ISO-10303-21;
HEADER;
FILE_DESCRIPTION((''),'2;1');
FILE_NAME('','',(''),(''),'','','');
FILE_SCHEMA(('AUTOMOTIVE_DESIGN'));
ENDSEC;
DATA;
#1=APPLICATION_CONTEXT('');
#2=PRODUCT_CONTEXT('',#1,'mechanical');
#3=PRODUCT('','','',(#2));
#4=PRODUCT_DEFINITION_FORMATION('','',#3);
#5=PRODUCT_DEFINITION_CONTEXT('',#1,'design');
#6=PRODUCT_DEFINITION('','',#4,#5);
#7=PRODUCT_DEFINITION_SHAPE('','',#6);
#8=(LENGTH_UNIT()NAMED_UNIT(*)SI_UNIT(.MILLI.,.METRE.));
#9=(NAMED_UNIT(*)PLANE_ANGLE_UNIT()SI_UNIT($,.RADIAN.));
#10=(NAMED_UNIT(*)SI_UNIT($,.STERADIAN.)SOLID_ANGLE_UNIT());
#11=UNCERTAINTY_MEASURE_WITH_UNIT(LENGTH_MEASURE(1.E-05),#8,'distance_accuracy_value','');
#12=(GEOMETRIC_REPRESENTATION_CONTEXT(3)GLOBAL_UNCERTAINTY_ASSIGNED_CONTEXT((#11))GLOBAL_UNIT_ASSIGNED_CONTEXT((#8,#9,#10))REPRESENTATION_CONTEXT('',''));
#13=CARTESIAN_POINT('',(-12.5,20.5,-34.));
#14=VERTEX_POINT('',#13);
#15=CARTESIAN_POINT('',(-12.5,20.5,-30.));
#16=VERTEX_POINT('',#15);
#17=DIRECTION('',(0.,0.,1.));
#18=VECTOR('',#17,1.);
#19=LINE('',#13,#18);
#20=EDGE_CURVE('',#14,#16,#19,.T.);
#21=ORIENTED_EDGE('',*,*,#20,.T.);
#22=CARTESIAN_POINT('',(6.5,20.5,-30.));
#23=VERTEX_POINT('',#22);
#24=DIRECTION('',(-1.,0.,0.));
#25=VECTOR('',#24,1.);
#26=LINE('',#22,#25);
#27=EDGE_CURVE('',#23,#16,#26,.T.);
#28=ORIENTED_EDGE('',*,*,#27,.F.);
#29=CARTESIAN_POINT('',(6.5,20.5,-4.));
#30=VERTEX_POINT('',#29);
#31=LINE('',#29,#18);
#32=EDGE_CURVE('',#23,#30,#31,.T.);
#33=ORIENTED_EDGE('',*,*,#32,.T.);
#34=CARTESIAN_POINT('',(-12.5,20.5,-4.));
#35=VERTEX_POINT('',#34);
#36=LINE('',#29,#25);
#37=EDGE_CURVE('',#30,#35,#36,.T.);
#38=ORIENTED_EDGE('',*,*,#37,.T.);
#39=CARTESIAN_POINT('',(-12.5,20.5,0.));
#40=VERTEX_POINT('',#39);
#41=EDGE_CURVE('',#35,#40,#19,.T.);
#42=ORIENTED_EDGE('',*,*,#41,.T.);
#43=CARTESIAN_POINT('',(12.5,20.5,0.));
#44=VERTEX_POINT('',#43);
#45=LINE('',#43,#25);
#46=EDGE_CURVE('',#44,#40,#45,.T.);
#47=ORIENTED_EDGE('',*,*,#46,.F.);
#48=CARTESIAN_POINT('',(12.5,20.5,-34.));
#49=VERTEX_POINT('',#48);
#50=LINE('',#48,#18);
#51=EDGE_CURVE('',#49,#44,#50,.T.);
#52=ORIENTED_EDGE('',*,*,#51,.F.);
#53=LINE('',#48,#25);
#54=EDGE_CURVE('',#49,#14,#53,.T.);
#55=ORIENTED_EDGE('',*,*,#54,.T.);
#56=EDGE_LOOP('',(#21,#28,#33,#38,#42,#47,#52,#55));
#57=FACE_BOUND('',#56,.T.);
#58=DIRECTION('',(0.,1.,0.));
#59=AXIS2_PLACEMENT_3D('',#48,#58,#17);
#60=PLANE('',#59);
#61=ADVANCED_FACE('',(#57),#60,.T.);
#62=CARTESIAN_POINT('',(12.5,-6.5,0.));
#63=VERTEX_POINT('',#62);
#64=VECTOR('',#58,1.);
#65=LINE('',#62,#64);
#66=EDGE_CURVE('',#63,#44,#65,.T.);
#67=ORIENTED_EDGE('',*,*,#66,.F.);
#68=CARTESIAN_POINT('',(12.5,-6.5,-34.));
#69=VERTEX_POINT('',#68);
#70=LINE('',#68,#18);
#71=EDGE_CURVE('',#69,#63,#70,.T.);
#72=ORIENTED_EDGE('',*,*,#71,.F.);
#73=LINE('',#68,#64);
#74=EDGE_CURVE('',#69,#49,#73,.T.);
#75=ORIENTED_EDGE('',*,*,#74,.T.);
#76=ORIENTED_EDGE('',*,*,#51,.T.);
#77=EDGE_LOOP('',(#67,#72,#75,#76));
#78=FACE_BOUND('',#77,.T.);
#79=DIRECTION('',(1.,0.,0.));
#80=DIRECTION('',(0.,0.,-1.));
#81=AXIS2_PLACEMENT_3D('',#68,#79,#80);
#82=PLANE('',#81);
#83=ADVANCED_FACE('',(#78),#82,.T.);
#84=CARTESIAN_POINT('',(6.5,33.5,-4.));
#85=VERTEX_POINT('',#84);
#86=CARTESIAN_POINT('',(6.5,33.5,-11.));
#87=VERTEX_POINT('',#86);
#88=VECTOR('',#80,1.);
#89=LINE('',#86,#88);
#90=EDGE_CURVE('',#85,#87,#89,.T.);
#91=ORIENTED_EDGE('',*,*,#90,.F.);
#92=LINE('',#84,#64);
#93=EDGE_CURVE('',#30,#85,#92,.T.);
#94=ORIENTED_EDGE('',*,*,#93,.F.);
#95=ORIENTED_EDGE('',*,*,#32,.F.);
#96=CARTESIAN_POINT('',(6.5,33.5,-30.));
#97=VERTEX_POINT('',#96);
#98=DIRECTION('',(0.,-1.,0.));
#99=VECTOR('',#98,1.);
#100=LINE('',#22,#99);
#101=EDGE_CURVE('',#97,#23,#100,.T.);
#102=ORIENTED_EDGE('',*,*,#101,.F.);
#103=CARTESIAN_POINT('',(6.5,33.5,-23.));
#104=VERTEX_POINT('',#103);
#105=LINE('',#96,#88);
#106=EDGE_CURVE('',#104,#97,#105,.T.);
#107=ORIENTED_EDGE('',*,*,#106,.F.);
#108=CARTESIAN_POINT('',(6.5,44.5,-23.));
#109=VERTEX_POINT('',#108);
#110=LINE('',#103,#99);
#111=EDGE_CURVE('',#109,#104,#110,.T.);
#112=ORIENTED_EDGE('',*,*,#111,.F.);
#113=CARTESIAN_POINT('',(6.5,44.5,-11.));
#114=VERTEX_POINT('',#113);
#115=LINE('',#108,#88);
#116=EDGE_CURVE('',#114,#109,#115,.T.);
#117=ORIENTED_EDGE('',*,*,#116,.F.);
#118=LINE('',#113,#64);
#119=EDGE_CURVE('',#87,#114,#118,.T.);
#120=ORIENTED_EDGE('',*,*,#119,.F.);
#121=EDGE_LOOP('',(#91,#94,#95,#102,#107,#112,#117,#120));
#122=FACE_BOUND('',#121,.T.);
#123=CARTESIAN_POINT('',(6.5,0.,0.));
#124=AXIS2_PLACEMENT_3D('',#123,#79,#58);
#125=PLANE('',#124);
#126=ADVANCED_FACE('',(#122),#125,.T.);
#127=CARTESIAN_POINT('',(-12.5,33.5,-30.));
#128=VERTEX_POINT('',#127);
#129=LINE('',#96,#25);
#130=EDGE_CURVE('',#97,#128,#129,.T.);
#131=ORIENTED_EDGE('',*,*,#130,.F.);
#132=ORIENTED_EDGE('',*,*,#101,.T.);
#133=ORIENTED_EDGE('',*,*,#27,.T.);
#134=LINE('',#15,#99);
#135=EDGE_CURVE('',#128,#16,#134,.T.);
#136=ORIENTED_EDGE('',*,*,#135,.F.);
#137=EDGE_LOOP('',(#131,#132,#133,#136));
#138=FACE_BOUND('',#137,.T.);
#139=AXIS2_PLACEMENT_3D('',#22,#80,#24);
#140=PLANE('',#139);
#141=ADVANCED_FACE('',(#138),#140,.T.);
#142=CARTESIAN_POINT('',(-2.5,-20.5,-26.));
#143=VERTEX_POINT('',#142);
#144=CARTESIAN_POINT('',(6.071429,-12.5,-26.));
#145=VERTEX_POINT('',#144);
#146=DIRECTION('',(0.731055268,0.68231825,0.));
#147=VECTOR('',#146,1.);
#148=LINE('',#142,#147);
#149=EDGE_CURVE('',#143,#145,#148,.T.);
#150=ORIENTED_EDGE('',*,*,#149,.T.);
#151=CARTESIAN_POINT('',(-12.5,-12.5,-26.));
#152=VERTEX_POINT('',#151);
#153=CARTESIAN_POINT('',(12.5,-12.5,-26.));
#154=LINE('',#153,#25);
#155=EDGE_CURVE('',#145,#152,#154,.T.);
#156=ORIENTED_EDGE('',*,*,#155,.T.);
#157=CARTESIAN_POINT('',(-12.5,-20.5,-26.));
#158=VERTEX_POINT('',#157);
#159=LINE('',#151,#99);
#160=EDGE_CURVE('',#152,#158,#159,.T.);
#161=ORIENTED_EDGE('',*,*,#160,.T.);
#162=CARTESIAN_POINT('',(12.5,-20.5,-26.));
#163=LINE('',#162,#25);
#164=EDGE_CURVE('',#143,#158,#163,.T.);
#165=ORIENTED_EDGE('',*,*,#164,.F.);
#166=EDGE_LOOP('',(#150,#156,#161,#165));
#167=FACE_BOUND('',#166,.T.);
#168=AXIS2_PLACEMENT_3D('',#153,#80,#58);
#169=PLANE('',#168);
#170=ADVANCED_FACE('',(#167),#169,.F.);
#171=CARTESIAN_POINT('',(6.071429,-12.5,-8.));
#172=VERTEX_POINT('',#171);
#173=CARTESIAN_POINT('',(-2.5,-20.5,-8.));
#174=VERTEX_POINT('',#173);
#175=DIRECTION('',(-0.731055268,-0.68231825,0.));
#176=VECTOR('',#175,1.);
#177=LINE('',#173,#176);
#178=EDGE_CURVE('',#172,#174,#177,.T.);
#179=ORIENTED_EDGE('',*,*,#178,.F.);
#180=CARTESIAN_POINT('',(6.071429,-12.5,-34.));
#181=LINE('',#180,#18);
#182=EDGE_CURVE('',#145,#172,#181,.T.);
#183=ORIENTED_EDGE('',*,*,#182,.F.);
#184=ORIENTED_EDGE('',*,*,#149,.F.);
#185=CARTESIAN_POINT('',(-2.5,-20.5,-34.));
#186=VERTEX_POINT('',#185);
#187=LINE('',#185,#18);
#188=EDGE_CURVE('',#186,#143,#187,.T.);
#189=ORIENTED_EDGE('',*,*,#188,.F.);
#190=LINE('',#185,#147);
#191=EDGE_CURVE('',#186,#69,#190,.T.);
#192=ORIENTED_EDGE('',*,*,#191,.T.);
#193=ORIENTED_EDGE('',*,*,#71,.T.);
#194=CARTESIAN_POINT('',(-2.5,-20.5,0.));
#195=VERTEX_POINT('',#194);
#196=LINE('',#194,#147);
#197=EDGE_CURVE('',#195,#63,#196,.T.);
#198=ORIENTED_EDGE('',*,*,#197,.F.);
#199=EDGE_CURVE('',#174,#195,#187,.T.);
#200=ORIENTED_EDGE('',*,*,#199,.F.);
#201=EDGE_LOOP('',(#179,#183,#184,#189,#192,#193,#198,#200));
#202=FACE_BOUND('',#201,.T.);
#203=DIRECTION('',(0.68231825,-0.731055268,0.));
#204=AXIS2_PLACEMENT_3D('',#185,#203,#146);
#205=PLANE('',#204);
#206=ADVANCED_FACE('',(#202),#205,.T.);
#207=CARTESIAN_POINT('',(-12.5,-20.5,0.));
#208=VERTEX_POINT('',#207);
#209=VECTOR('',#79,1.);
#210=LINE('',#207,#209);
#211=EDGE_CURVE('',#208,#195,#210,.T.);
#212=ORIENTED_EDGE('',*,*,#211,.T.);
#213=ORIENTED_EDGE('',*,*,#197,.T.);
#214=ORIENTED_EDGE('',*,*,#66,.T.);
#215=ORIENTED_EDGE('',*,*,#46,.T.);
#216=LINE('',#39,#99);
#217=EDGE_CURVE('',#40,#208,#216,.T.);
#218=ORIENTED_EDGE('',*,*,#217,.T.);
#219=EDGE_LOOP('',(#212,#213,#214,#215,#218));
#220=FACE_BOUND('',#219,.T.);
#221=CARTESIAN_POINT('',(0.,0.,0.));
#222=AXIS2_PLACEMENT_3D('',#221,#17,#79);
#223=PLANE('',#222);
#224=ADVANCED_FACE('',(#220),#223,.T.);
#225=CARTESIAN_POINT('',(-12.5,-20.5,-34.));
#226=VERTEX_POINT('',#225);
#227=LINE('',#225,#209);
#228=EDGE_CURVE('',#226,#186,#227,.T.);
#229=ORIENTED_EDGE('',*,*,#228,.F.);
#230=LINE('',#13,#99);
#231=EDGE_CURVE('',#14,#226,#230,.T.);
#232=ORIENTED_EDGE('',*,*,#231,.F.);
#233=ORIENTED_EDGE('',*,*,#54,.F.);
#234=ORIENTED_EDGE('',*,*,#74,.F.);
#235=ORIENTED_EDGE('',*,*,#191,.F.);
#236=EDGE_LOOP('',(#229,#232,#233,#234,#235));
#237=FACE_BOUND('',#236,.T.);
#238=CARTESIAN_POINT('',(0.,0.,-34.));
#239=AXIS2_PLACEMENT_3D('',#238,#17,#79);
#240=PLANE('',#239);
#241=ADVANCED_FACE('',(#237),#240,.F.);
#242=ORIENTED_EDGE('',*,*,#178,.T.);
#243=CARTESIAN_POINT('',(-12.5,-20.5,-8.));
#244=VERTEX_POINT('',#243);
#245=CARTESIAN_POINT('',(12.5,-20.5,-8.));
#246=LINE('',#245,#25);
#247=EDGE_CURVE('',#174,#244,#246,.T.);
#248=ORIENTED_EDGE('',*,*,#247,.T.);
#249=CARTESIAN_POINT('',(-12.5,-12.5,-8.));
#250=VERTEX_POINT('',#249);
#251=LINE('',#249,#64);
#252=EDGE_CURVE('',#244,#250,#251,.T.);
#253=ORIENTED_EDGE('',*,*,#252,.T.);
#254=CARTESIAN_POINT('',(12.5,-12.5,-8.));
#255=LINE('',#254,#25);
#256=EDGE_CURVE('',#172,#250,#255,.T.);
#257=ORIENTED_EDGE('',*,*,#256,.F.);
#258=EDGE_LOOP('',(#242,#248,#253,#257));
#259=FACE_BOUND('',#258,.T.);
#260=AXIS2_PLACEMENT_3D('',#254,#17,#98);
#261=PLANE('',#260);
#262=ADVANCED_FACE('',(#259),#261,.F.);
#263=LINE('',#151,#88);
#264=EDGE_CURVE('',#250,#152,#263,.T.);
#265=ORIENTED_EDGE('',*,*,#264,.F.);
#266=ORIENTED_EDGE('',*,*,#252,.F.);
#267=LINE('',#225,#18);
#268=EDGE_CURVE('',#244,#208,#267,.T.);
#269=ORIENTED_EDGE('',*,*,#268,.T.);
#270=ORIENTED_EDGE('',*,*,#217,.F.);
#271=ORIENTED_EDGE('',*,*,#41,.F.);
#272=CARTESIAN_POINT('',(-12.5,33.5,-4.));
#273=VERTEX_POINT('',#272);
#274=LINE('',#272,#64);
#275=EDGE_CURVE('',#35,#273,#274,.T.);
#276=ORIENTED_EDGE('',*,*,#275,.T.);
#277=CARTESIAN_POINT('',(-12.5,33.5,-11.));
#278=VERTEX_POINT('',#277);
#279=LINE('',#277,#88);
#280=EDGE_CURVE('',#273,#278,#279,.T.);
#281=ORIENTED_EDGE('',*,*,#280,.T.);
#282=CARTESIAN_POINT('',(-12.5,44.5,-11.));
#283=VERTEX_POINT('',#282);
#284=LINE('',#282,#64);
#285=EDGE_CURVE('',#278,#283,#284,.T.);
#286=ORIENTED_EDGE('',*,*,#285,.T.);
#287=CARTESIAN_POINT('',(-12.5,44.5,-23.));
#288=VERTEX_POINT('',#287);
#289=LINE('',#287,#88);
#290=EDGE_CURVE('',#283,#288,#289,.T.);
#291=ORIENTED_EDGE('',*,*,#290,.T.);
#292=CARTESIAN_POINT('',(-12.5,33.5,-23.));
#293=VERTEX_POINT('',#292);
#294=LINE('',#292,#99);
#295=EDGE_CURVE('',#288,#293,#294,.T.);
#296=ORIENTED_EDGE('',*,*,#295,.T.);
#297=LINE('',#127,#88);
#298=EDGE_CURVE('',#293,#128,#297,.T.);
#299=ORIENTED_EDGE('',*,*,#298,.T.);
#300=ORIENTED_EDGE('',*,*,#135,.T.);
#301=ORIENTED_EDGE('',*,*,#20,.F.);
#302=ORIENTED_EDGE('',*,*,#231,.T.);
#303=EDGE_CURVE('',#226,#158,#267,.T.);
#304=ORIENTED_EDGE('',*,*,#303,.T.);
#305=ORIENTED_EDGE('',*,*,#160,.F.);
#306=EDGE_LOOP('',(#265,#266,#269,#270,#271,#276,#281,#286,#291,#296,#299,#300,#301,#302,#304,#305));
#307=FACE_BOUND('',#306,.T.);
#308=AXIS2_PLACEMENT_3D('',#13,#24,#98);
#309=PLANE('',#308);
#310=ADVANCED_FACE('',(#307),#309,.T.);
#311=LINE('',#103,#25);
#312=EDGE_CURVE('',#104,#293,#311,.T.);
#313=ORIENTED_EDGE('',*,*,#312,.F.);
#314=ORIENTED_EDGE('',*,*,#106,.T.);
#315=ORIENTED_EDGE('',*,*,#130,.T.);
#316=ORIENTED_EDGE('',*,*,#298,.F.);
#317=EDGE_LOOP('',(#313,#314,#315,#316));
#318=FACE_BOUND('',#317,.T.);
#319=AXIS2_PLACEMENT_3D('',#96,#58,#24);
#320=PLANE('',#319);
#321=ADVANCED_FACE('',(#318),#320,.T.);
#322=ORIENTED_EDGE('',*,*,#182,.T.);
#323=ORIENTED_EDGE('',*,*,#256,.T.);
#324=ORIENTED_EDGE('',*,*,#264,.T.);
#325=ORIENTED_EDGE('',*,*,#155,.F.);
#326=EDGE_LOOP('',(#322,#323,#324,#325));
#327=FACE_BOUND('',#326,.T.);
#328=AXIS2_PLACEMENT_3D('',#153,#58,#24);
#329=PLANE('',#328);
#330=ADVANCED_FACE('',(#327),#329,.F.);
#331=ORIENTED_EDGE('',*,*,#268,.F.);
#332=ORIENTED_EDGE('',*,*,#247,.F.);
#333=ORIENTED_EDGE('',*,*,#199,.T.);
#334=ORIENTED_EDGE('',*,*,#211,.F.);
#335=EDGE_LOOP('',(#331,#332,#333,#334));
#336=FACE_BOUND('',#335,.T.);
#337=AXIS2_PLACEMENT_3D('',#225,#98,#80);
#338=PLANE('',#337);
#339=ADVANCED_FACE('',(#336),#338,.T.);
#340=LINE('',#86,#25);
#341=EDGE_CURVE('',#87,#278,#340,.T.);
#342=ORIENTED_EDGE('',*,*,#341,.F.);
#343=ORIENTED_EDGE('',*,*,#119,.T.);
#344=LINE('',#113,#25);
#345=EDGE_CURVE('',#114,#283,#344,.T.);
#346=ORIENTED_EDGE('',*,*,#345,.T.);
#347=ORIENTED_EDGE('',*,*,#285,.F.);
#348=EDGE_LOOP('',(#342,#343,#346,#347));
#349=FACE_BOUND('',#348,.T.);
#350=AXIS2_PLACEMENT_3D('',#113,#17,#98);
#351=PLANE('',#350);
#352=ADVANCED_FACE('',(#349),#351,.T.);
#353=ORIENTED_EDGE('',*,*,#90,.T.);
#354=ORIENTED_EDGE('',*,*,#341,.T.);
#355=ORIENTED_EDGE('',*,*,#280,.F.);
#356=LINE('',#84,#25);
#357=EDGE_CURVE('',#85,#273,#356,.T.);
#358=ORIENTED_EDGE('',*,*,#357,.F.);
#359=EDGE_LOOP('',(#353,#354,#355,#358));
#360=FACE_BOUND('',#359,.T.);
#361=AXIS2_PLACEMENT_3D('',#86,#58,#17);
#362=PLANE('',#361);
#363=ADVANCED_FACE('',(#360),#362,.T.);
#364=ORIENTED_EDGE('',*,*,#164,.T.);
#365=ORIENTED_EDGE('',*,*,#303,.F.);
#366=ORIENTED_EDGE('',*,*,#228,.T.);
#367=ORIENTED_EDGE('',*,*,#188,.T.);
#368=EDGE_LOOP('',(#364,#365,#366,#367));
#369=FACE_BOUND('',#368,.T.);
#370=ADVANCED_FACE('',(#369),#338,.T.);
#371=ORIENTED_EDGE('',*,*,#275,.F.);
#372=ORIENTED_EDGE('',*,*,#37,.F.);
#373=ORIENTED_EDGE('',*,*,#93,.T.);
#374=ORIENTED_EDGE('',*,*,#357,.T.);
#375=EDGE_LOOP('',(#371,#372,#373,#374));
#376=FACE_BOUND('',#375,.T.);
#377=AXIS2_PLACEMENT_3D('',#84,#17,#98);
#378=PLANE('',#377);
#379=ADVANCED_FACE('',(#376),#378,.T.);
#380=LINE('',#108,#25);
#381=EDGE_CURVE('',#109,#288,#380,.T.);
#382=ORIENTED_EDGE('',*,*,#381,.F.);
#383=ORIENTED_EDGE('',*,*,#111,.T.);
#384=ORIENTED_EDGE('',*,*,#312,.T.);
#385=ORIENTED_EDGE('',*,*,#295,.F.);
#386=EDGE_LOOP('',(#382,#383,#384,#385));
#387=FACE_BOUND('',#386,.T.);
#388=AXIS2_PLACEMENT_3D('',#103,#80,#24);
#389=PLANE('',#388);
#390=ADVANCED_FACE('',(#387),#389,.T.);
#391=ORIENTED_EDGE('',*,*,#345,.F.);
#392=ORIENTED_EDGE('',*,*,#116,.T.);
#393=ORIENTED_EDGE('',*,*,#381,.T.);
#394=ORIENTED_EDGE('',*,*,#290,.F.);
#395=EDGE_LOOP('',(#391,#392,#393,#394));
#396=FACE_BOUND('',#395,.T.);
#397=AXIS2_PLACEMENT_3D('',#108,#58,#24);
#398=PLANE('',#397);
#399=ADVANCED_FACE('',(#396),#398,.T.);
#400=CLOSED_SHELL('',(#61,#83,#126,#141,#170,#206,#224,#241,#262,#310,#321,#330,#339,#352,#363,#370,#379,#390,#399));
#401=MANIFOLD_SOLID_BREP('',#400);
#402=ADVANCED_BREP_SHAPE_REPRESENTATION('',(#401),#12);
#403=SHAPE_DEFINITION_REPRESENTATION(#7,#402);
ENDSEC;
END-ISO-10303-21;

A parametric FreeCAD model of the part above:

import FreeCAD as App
import Part
import Sketcher

V = App.Vector
Q = App.Units.Quantity


def add_polygon(sketch, points):
    """Adds a closed chain of lines whose ends are joined by coincident constraints."""
    first, n = sketch.GeometryCount, len(points)
    for a, b in zip(points, points[1:] + points[:1]):
        sketch.addGeometry(Part.LineSegment(App.Vector(*a, 0), App.Vector(*b, 0)), False)
    for i in range(n):
        sketch.addConstraint(Sketcher.Constraint("Coincident", first + i, 2, first + (i + 1) % n, 1))

doc = App.newDocument("Part")
body = doc.addObject("PartDesign::Body", "Body")

sketch1 = body.newObject("Sketcher::SketchObject", "Sketch")
sketch1.AttachmentSupport = (doc.getObject("XY_Plane"), [""])
sketch1.MapMode = "FlatFace"
add_polygon(sketch1, [(-12, 20), (-12, -20), (-2, -20), (12, -6), (12, 20)])
sketch1.addConstraint(Sketcher.Constraint("Vertical", 0))
sketch1.addConstraint(Sketcher.Constraint("Horizontal", 1))
sketch1.addConstraint(Sketcher.Constraint("Vertical", 3))
sketch1.addConstraint(Sketcher.Constraint("Horizontal", 4))
sketch1.addConstraint(Sketcher.Constraint("Symmetric", 0, 2, 3, 2, -1, 1))
sketch1.addConstraint(Sketcher.Constraint("DistanceX", 1, 1, 1, 2, Q("10 mm")))
sketch1.addConstraint(Sketcher.Constraint("DistanceX", 4, 2, 4, 1, Q("25 mm")))
sketch1.addConstraint(Sketcher.Constraint("DistanceY", 0, 2, 0, 1, Q("41 mm")))
sketch1.addConstraint(Sketcher.Constraint("DistanceY", 3, 1, 3, 2, Q("27 mm")))
pad1 = body.newObject("PartDesign::Pad", "Pad")
pad1.Profile = sketch1
pad1.Length = 34
pad1.Reversed = True

sketch2 = body.newObject("Sketcher::SketchObject", "Sketch001")
sketch2.AttachmentSupport = (doc.getObject("YZ_Plane"), [""])
sketch2.MapMode = "FlatFace"
sketch2.AttachmentOffset = App.Placement(V(0, 0, -12.5), App.Rotation())
add_polygon(sketch2, [(34, -30), (20, -30), (20, -4), (34, -4), (34, -11), (44, -11), (44, -23), (34, -23)])
sketch2.addConstraint(Sketcher.Constraint("Horizontal", 0))
sketch2.addConstraint(Sketcher.Constraint("Vertical", 1))
sketch2.addConstraint(Sketcher.Constraint("Horizontal", 2))
sketch2.addConstraint(Sketcher.Constraint("Vertical", 3))
sketch2.addConstraint(Sketcher.Constraint("Horizontal", 4))
sketch2.addConstraint(Sketcher.Constraint("Vertical", 5))
sketch2.addConstraint(Sketcher.Constraint("Horizontal", 6))
sketch2.addConstraint(Sketcher.Constraint("Vertical", 7))
sketch2.addConstraint(Sketcher.Constraint("Vertical", 3, 2, 6, 2))
sketch2.addConstraint(Sketcher.Constraint("Equal", 3, 7))
sketch2.addConstraint(Sketcher.Constraint("DistanceX", 0, 2, 0, 1, Q("13 mm")))
sketch2.addConstraint(Sketcher.Constraint("DistanceX", 4, 1, 4, 2, Q("11 mm")))
sketch2.addConstraint(Sketcher.Constraint("DistanceY", 1, 1, 1, 2, Q("26 mm")))
sketch2.addConstraint(Sketcher.Constraint("DistanceY", 3, 2, 3, 1, Q("7 mm")))
sketch2.addConstraint(Sketcher.Constraint("DistanceY", 0, 2, -1, 1, Q("30 mm")))
sketch2.addConstraint(Sketcher.Constraint("DistanceX", -1, 1, 0, 2, Q("20.5 mm")))
pad2 = body.newObject("PartDesign::Pad", "Pad001")
pad2.Profile = sketch2
pad2.Length = 19

sketch3 = body.newObject("Sketcher::SketchObject", "Sketch002")
sketch3.AttachmentSupport = (doc.getObject("YZ_Plane"), [""])
sketch3.MapMode = "FlatFace"
sketch3.AttachmentOffset = App.Placement(V(0, 0, -12.5), App.Rotation())
add_polygon(sketch3, [(-12, -26), (-20, -26), (-20, -8), (-12, -8)])
sketch3.addConstraint(Sketcher.Constraint("Horizontal", 0))
sketch3.addConstraint(Sketcher.Constraint("Vertical", 1))
sketch3.addConstraint(Sketcher.Constraint("Horizontal", 2))
sketch3.addConstraint(Sketcher.Constraint("Vertical", 3))
sketch3.addConstraint(Sketcher.Constraint("DistanceX", 0, 2, 0, 1, Q("8 mm")))
sketch3.addConstraint(Sketcher.Constraint("DistanceY", 1, 1, 1, 2, Q("18 mm")))
sketch3.addConstraint(Sketcher.Constraint("DistanceY", 0, 2, -1, 1, Q("26 mm")))
sketch3.addConstraint(Sketcher.Constraint("DistanceX", 0, 2, -1, 1, Q("20.5 mm")))
pocket1 = body.newObject("PartDesign::Pocket", "Pocket")
pocket1.Profile = sketch3
pocket1.Type = "ThroughAll"
pocket1.Reversed = True

doc.recompute()
